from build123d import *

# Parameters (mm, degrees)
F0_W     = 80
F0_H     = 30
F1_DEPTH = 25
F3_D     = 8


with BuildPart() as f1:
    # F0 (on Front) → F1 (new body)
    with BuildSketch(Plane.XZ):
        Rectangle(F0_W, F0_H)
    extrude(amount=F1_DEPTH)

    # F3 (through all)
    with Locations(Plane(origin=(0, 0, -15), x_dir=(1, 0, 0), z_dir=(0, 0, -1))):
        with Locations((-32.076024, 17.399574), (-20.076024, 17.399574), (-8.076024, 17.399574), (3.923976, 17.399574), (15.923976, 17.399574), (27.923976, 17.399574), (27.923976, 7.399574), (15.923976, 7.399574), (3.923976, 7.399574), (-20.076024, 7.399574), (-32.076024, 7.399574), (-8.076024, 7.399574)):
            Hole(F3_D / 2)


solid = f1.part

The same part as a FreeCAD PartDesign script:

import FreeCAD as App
import Part
import Sketcher
from FreeCAD import Vector
Q = App.Units.Quantity


def add_polygon(sketch, points):
    """Adds a closed chain of lines whose ends are joined by coincident constraints."""
    first, n = sketch.GeometryCount, len(points)
    for a, b in zip(points, points[1:] + points[:1]):
        sketch.addGeometry(Part.LineSegment(App.Vector(*a, 0), App.Vector(*b, 0)), False)
    for i in range(n):
        sketch.addConstraint(Sketcher.Constraint("Coincident", first + i, 2, first + (i + 1) % n, 1))

doc = App.newDocument("Part")
body = doc.addObject("PartDesign::Body", "Body")

# Sketch on XZ plane
sketch1 = body.newObject("Sketcher::SketchObject", "Sketch")
sketch1.AttachmentSupport = (doc.getObject("XZ_Plane"), [""])
sketch1.MapMode = "FlatFace"
add_polygon(sketch1, [(-40, 15), (-40, -15), (40, -15), (40, 15)])  # lines 0-3
sketch1.addConstraint([
    Sketcher.Constraint("Vertical", 0),
    Sketcher.Constraint("Horizontal", 1),
    Sketcher.Constraint("Vertical", 2),
    Sketcher.Constraint("Horizontal", 3),
    Sketcher.Constraint("Symmetric", 0, 2, 2, 2, -1, 1),
    Sketcher.Constraint("DistanceX", 1, 1, 1, 2, Q("80 mm")),
    Sketcher.Constraint("DistanceY", 0, 2, 0, 1, Q("30 mm")),
])
pad1 = body.newObject("PartDesign::Pad", "Pad")
pad1.Profile = sketch1
pad1.Length = 25

# Sketch on XY plane
sketch2 = body.newObject("Sketcher::SketchObject", "Sketch001")
sketch2.AttachmentSupport = (doc.getObject("XY_Plane"), [""])
sketch2.MapMode = "FlatFace"
sketch2.AttachmentOffset = App.Placement(Vector(0, 0, -15), App.Rotation())
sketch2.addGeometry([
    Part.Circle(Vector(-32.076024, -17.399574, 0), Vector(0, 0, 1), 4),  # 0
    Part.Circle(Vector(-20.076024, -17.399574, 0), Vector(0, 0, 1), 4),  # 1
    Part.Circle(Vector(-8.076024, -17.399574, 0), Vector(0, 0, 1), 4),  # 2
    Part.Circle(Vector(3.923976, -17.399574, 0), Vector(0, 0, 1), 4),  # 3
    Part.Circle(Vector(15.923976, -17.399574, 0), Vector(0, 0, 1), 4),  # 4
    Part.Circle(Vector(27.923976, -17.399574, 0), Vector(0, 0, 1), 4),  # 5
    Part.Circle(Vector(27.923976, -7.399574, 0), Vector(0, 0, 1), 4),  # 6
    Part.Circle(Vector(15.923976, -7.399574, 0), Vector(0, 0, 1), 4),  # 7
    Part.Circle(Vector(3.923976, -7.399574, 0), Vector(0, 0, 1), 4),  # 8
    Part.Circle(Vector(-20.076024, -7.399574, 0), Vector(0, 0, 1), 4),  # 9
    Part.Circle(Vector(-32.076024, -7.399574, 0), Vector(0, 0, 1), 4),  # 10
    Part.Circle(Vector(-8.076024, -7.399574, 0), Vector(0, 0, 1), 4),  # 11
], False)
sketch2.addConstraint([
    Sketcher.Constraint("Equal", 0, 1),
    Sketcher.Constraint("Equal", 1, 2),
    Sketcher.Constraint("Equal", 2, 3),
    Sketcher.Constraint("Equal", 3, 4),
    Sketcher.Constraint("Equal", 4, 5),
    Sketcher.Constraint("Equal", 5, 6),
    Sketcher.Constraint("Equal", 6, 7),
    Sketcher.Constraint("Equal", 7, 8),
    Sketcher.Constraint("Equal", 8, 9),
    Sketcher.Constraint("Equal", 9, 10),
    Sketcher.Constraint("Equal", 10, 11),
    Sketcher.Constraint("Horizontal", 0, 3, 1, 3),
    Sketcher.Constraint("Horizontal", 1, 3, 2, 3),
    Sketcher.Constraint("Horizontal", 2, 3, 3, 3),
    Sketcher.Constraint("Horizontal", 3, 3, 4, 3),
    Sketcher.Constraint("Horizontal", 4, 3, 5, 3),
    Sketcher.Constraint("Horizontal", 6, 3, 7, 3),
    Sketcher.Constraint("Horizontal", 7, 3, 8, 3),
    Sketcher.Constraint("Horizontal", 8, 3, 9, 3),
    Sketcher.Constraint("Horizontal", 9, 3, 10, 3),
    Sketcher.Constraint("Horizontal", 10, 3, 11, 3),
    Sketcher.Constraint("Vertical", 5, 3, 6, 3),
    Sketcher.Constraint("Vertical", 4, 3, 7, 3),
    Sketcher.Constraint("Vertical", 3, 3, 8, 3),
    Sketcher.Constraint("Vertical", 1, 3, 9, 3),
    Sketcher.Constraint("Vertical", 0, 3, 10, 3),
    Sketcher.Constraint("Vertical", 2, 3, 11, 3),
    Sketcher.Constraint("Diameter", 0, Q("8 mm")),
    Sketcher.Constraint("DistanceX", 0, 3, 1, 3, Q("12 mm")),
    Sketcher.Constraint("DistanceX", 1, 3, 2, 3, Q("12 mm")),
    Sketcher.Constraint("DistanceX", 2, 3, 3, 3, Q("12 mm")),
    Sketcher.Constraint("DistanceX", 3, 3, 4, 3, Q("12 mm")),
    Sketcher.Constraint("DistanceX", 4, 3, 5, 3, Q("12 mm")),
    Sketcher.Constraint("DistanceY", 5, 3, 6, 3, Q("10 mm")),
    Sketcher.Constraint("DistanceX", 0, 3, -1, 1, Q("32.076024 mm")),
    Sketcher.Constraint("DistanceY", 0, 3, -1, 1, Q("17.399574 mm")),
])
doc.recompute()
hole = body.newObject("PartDesign::Hole", "Hole")
hole.Profile = sketch2
hole.ThreadType = "None"
hole.Diameter = 8
hole.DepthType = "ThroughAll"
hole.Reversed = True

doc.recompute()
